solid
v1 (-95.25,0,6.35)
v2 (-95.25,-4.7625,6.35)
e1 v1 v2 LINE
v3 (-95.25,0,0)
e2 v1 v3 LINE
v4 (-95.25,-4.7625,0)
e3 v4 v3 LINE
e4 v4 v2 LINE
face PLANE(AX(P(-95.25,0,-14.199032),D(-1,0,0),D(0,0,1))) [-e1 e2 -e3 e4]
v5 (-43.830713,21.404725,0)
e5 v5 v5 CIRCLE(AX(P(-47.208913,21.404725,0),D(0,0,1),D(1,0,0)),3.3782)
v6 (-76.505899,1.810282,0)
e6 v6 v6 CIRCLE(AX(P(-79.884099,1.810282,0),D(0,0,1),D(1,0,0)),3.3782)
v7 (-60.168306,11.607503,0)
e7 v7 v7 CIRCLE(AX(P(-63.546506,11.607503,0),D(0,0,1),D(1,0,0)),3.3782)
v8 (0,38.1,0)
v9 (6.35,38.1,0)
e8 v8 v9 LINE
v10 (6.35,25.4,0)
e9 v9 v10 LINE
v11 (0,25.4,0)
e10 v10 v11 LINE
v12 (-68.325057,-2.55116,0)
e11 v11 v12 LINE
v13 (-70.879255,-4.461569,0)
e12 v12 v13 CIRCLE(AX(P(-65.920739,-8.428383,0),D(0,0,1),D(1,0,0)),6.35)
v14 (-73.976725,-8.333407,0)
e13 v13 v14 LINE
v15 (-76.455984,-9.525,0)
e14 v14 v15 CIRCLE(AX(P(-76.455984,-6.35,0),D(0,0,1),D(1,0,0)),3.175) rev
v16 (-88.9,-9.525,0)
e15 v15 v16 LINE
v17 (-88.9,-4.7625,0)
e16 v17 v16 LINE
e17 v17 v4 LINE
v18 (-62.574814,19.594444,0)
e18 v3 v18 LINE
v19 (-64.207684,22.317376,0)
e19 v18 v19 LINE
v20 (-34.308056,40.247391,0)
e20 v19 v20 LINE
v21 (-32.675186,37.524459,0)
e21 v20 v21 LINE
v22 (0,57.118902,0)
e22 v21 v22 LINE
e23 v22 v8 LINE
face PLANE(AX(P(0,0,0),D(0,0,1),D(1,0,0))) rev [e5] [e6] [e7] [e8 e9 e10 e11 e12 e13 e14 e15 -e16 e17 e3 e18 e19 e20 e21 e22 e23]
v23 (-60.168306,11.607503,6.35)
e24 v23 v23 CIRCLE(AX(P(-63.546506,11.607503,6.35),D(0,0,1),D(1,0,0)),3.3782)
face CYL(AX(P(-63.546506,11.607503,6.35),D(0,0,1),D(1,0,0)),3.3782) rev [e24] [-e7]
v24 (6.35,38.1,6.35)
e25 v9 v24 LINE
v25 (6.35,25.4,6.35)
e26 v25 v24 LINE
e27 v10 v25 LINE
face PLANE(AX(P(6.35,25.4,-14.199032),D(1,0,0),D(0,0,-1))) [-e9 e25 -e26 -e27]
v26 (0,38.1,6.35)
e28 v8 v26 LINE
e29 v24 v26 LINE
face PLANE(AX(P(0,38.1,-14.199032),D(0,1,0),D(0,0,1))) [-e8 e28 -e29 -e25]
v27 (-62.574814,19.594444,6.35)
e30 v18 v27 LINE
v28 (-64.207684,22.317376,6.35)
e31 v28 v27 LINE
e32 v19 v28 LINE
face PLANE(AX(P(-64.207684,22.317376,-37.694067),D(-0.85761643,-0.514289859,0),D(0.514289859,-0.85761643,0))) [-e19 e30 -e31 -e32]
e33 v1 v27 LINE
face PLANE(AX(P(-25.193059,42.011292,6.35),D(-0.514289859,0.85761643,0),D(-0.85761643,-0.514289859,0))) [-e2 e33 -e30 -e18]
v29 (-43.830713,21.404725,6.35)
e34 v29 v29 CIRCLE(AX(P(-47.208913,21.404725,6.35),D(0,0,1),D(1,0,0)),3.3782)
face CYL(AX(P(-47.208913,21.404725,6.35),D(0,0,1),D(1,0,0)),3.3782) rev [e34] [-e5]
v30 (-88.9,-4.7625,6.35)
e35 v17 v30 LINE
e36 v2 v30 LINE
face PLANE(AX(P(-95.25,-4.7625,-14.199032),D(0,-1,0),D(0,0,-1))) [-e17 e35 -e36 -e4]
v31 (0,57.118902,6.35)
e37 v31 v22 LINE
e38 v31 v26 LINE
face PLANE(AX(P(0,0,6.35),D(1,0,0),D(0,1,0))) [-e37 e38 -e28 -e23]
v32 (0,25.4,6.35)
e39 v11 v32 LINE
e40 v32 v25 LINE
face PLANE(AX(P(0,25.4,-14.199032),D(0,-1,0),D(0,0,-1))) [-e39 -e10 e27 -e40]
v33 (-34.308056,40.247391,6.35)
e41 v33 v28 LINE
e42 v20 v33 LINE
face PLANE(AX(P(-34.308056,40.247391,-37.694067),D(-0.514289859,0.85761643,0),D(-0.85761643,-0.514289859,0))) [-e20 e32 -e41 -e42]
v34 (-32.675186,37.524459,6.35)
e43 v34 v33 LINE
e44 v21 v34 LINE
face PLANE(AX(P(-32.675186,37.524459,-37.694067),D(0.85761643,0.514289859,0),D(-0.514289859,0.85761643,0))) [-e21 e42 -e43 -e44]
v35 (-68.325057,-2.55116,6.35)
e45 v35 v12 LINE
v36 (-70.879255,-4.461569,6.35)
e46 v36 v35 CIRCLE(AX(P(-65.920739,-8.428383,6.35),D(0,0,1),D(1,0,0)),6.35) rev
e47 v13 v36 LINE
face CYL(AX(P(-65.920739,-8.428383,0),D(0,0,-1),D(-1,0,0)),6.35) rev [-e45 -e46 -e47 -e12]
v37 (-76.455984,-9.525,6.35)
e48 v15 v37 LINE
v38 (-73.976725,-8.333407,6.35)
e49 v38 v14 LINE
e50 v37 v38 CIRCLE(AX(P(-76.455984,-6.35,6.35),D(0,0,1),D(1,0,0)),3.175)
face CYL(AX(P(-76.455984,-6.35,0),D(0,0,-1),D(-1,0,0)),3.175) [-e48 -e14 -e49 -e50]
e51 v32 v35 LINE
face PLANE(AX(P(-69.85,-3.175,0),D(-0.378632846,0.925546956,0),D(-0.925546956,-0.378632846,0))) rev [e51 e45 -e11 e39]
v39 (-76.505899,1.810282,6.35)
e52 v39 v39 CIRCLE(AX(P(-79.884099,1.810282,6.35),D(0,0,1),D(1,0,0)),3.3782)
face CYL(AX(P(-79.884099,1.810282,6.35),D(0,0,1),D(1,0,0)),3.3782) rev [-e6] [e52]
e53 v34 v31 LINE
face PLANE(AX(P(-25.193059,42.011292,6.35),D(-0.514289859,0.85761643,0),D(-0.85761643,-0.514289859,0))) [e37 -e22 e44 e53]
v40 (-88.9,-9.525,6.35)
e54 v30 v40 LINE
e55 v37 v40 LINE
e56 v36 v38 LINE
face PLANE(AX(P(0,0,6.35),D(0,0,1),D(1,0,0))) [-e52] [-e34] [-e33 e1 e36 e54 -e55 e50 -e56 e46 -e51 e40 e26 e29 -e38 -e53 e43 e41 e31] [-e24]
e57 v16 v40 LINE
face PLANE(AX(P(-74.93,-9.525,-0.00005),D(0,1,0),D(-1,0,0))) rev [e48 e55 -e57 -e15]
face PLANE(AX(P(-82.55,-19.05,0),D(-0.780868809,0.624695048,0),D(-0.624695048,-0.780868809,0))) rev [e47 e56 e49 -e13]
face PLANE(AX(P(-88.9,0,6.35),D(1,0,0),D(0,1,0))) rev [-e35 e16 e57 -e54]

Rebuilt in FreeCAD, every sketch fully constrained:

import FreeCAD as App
import Part
import Sketcher

V = App.Vector
Q = App.Units.Quantity


def edges_at(feature, points):
    """Names of the edges that pass closest to the given points."""
    edges = feature.Shape.Edges
    near = lambda p: min(range(len(edges)), key=lambda i: edges[i].distToShape(Part.Vertex(*p))[0])
    return sorted({f"Edge{near(p) + 1}" for p in points})


def add_polygon(sketch, points):
    """Adds a closed chain of lines whose ends are joined by coincident constraints."""
    first, n = sketch.GeometryCount, len(points)
    for a, b in zip(points, points[1:] + points[:1]):
        sketch.addGeometry(Part.LineSegment(App.Vector(*a, 0), App.Vector(*b, 0)), False)
    for i in range(n):
        sketch.addConstraint(Sketcher.Constraint("Coincident", first + i, 2, first + (i + 1) % n, 1))

doc = App.newDocument("Part")
body = doc.addObject("PartDesign::Body", "Body")

# Sketch on XY plane
sketch1 = body.newObject("Sketcher::SketchObject", "Sketch")
sketch1.AttachmentSupport = (doc.getObject("XY_Plane"), [""])
sketch1.MapMode = "FlatFace"
add_polygon(sketch1, [(-82.55, -19.05), (0, 0), (0, 57.118902), (-95.25, 0), (-88.9, 0), (-88.9, -19.05)])  # lines 0-5
sketch1.addConstraint([
    Sketcher.Constraint("Vertical", 1),
    Sketcher.Constraint("Horizontal", 3),
    Sketcher.Constraint("Vertical", 4),
    Sketcher.Constraint("Horizontal", 5),
    Sketcher.Constraint("Coincident", 0, 2, -1, 1),
    Sketcher.Constraint("PointOnObject", 2, 2, -1),
    Sketcher.Constraint("Equal", 3, 5),
    Sketcher.Constraint("DistanceX", 3, 1, 3, 2, Q("0.25 in")),
    Sketcher.Constraint("DistanceY", 4, 2, 4, 1, Q("0.75 in")),
    Sketcher.Constraint("DistanceX", 3, 2, -1, 1, Q("3.5 in")),
    Sketcher.Constraint("Angle", 2, Q("-149.05 deg")),
])
pad1 = body.newObject("PartDesign::Pad", "Pad")
pad1.Profile = sketch1
pad1.Length = Q("0.25 in")

# Sketch on XY plane
sketch2 = body.newObject("Sketcher::SketchObject", "Sketch001")
sketch2.AttachmentSupport = (doc.getObject("XY_Plane"), [""])
sketch2.MapMode = "FlatFace"
sketch2.AttachmentOffset = App.Placement(V(0, 0, 0.25 * 25.4), App.Rotation())
add_polygon(sketch2, [(-69.85, -3.175), (-82.55, -19.05), (0, 0), (0, 25.4)])  # lines 0-3
sketch2.addConstraint([
    Sketcher.Constraint("Vertical", 2),
    Sketcher.Constraint("Coincident", 1, 2, -1, 1),
    Sketcher.Constraint("DistanceY", 2, 1, 2, 2, Q("1 in")),
    Sketcher.Constraint("DistanceX", 0, 2, 3, 2, Q("0.5 in")),
    Sketcher.Constraint("DistanceX", 0, 2, -1, 1, Q("3.25 in")),
    Sketcher.Constraint("DistanceY", 0, 2, -1, 1, Q("0.75 in")),
    Sketcher.Constraint("DistanceY", 3, 2, -1, 1, Q("0.125 in")),
])
pocket1 = body.newObject("PartDesign::Pocket", "Pocket")
pocket1.Profile = sketch2
pocket1.Type = "ThroughAll"
doc.recompute()

fillet = body.newObject("PartDesign::Fillet", "Fillet")
fillet.Base = (pocket1, edges_at(pocket1, [(-69.85, -3.175, 3.175)]))
fillet.Radius = Q("0.25 in")

# Sketch on XY plane
sketch3 = body.newObject("Sketcher::SketchObject", "Sketch002")
sketch3.AttachmentSupport = (doc.getObject("XY_Plane"), [""])
sketch3.MapMode = "FlatFace"
sketch3.AttachmentOffset = App.Placement(V(0, 0, 0.25 * 25.4), App.Rotation())
add_polygon(sketch3, [(0, 38.1), (0, 25.4), (6.35, 25.4), (6.35, 38.1)])  # lines 0-3
add_polygon(sketch3, [(-95.25, 0), (-95.25, -4.7625), (-88.9, -4.7625), (-88.9, 0)])  # lines 4-7
sketch3.addConstraint([
    Sketcher.Constraint("Vertical", 0),
    Sketcher.Constraint("Horizontal", 1),
    Sketcher.Constraint("Vertical", 2),
    Sketcher.Constraint("Horizontal", 3),
    Sketcher.Constraint("Vertical", 4),
    Sketcher.Constraint("Horizontal", 5),
    Sketcher.Constraint("Vertical", 6),
    Sketcher.Constraint("Horizontal", 7),
    Sketcher.Constraint("PointOnObject", 0, 2, -2),
    Sketcher.Constraint("PointOnObject", 6, 2, -1),
    Sketcher.Constraint("Equal", 3, 5),
    Sketcher.Constraint("DistanceY", 0, 2, 0, 1, Q("0.5 in")),
    Sketcher.Constraint("DistanceY", -1, 1, 0, 2, Q("1 in")),
    Sketcher.Constraint("DistanceX", 4, 2, 1, 2, Q("4 in")),
    Sketcher.Constraint("DistanceX", 1, 1, 1, 2, Q("0.25 in")),
    Sketcher.Constraint("DistanceY", 4, 2, 4, 1, Q("0.1875 in")),
])
pad2 = body.newObject("PartDesign::Pad", "Pad001")
pad2.Profile = sketch3
pad2.Length = Q("0.25 in")
pad2.Reversed = True

# Sketch on XY plane
sketch4 = body.newObject("Sketcher::SketchObject", "Sketch003")
sketch4.AttachmentSupport = (doc.getObject("XY_Plane"), [""])
sketch4.MapMode = "FlatFace"
sketch4.AttachmentOffset = App.Placement(V(0, 0, 0.25 * 25.4), App.Rotation())
add_polygon(sketch4, [(-88.9, -9.525), (-88.9, -19.05), (-74.93, -19.05), (-74.93, -9.525)])  # lines 0-3
sketch4.addConstraint([
    Sketcher.Constraint("Vertical", 0),
    Sketcher.Constraint("Horizontal", 1),
    Sketcher.Constraint("Vertical", 2),
    Sketcher.Constraint("Horizontal", 3),
    Sketcher.Constraint("DistanceX", 1, 1, 1, 2, Q("0.55 in")),
    Sketcher.Constraint("DistanceX", 0, 2, -1, 1, Q("3.5 in")),
    Sketcher.Constraint("DistanceY", 0, 2, 0, 1, Q("0.375 in")),
    Sketcher.Constraint("DistanceY", 0, 2, -1, 1, Q("0.75 in")),
])
pocket2 = body.newObject("PartDesign::Pocket", "Pocket001")
pocket2.Profile = sketch4
pocket2.Type = "ThroughAll"
doc.recompute()

fillet2 = body.newObject("PartDesign::Fillet", "Fillet001")
fillet2.Base = (pocket2, edges_at(pocket2, [(-74.93, -9.525, 3.175)]))
fillet2.Radius = Q("0.125 in")

# Sketch on XY plane
sketch5 = body.newObject("Sketcher::SketchObject", "Sketch004")
sketch5.AttachmentSupport = (doc.getObject("XY_Plane"), [""])
sketch5.MapMode = "FlatFace"
sketch5.AttachmentOffset = App.Placement(V(0, 0, 0.25 * 25.4), App.Rotation())
sketch5.addGeometry([
    Part.Circle(V(-79.884099, 1.810282, 0), V(0, 0, 1), 3.3782),
    Part.Circle(V(-63.546506, 11.607503, 0), V(0, 0, 1), 3.3782),
    Part.Circle(V(-47.208913, 21.404725, 0), V(0, 0, 1), 3.3782),
], False)
sketch5.addConstraint([
    Sketcher.Constraint("Equal", 0, 1),
    Sketcher.Constraint("Equal", 1, 2),
    Sketcher.Constraint("Diameter", 0, Q("0.266 in")),
    Sketcher.Constraint("DistanceX", 0, 3, -1, 1, 79.884099),
    Sketcher.Constraint("DistanceY", -1, 1, 0, 3, 1.810282),
    Sketcher.Constraint("DistanceY", 0, 3, 1, 3, 9.797222),
    Sketcher.Constraint("DistanceY", 1, 3, 2, 3, 9.797222),
    Sketcher.Constraint("DistanceX", 1, 3, -1, 1, 63.546506),
    Sketcher.Constraint("DistanceX", 2, 3, -1, 1, 47.208913),
])
doc.recompute()
hole = body.newObject("PartDesign::Hole", "Hole")
hole.Profile = sketch5
hole.ThreadType = "None"
hole.Diameter = Q("0.266 in")
hole.DepthType = "ThroughAll"

# Sketch on XY plane
sketch6 = body.newObject("Sketcher::SketchObject", "Sketch005")
sketch6.AttachmentSupport = (doc.getObject("XY_Plane"), [""])
sketch6.MapMode = "FlatFace"
sketch6.AttachmentOffset = App.Placement(V(0, 0, 0.25 * 25.4), App.Rotation())
add_polygon(sketch6, [(-32.675186, 37.524459), (-34.308056, 40.247391), (-64.207684, 22.317376), (-62.574814, 19.594444)])  # lines 0-3
sketch6.addConstraint([
    Sketcher.Constraint("Perpendicular", 0, 1),
    Sketcher.Constraint("Perpendicular", 1, 2),
    Sketcher.Constraint("Perpendicular", 2, 3),
    Sketcher.Constraint("Angle", 0, Q("120.95 deg")),
    Sketcher.Constraint("Distance", 0, Q("0.125 in")),
    Sketcher.Constraint("DistanceX", 1, 2, 3, 2, 31.532498),
    Sketcher.Constraint("DistanceY", -1, 1, 0, 2, 40.247391),
    Sketcher.Constraint("DistanceX", 0, 2, -1, 1, 34.308056),
])
pad3 = body.newObject("PartDesign::Pad", "Pad002")
pad3.Profile = sketch6
pad3.Length = Q("0.25 in")
pad3.Reversed = True

doc.recompute()
